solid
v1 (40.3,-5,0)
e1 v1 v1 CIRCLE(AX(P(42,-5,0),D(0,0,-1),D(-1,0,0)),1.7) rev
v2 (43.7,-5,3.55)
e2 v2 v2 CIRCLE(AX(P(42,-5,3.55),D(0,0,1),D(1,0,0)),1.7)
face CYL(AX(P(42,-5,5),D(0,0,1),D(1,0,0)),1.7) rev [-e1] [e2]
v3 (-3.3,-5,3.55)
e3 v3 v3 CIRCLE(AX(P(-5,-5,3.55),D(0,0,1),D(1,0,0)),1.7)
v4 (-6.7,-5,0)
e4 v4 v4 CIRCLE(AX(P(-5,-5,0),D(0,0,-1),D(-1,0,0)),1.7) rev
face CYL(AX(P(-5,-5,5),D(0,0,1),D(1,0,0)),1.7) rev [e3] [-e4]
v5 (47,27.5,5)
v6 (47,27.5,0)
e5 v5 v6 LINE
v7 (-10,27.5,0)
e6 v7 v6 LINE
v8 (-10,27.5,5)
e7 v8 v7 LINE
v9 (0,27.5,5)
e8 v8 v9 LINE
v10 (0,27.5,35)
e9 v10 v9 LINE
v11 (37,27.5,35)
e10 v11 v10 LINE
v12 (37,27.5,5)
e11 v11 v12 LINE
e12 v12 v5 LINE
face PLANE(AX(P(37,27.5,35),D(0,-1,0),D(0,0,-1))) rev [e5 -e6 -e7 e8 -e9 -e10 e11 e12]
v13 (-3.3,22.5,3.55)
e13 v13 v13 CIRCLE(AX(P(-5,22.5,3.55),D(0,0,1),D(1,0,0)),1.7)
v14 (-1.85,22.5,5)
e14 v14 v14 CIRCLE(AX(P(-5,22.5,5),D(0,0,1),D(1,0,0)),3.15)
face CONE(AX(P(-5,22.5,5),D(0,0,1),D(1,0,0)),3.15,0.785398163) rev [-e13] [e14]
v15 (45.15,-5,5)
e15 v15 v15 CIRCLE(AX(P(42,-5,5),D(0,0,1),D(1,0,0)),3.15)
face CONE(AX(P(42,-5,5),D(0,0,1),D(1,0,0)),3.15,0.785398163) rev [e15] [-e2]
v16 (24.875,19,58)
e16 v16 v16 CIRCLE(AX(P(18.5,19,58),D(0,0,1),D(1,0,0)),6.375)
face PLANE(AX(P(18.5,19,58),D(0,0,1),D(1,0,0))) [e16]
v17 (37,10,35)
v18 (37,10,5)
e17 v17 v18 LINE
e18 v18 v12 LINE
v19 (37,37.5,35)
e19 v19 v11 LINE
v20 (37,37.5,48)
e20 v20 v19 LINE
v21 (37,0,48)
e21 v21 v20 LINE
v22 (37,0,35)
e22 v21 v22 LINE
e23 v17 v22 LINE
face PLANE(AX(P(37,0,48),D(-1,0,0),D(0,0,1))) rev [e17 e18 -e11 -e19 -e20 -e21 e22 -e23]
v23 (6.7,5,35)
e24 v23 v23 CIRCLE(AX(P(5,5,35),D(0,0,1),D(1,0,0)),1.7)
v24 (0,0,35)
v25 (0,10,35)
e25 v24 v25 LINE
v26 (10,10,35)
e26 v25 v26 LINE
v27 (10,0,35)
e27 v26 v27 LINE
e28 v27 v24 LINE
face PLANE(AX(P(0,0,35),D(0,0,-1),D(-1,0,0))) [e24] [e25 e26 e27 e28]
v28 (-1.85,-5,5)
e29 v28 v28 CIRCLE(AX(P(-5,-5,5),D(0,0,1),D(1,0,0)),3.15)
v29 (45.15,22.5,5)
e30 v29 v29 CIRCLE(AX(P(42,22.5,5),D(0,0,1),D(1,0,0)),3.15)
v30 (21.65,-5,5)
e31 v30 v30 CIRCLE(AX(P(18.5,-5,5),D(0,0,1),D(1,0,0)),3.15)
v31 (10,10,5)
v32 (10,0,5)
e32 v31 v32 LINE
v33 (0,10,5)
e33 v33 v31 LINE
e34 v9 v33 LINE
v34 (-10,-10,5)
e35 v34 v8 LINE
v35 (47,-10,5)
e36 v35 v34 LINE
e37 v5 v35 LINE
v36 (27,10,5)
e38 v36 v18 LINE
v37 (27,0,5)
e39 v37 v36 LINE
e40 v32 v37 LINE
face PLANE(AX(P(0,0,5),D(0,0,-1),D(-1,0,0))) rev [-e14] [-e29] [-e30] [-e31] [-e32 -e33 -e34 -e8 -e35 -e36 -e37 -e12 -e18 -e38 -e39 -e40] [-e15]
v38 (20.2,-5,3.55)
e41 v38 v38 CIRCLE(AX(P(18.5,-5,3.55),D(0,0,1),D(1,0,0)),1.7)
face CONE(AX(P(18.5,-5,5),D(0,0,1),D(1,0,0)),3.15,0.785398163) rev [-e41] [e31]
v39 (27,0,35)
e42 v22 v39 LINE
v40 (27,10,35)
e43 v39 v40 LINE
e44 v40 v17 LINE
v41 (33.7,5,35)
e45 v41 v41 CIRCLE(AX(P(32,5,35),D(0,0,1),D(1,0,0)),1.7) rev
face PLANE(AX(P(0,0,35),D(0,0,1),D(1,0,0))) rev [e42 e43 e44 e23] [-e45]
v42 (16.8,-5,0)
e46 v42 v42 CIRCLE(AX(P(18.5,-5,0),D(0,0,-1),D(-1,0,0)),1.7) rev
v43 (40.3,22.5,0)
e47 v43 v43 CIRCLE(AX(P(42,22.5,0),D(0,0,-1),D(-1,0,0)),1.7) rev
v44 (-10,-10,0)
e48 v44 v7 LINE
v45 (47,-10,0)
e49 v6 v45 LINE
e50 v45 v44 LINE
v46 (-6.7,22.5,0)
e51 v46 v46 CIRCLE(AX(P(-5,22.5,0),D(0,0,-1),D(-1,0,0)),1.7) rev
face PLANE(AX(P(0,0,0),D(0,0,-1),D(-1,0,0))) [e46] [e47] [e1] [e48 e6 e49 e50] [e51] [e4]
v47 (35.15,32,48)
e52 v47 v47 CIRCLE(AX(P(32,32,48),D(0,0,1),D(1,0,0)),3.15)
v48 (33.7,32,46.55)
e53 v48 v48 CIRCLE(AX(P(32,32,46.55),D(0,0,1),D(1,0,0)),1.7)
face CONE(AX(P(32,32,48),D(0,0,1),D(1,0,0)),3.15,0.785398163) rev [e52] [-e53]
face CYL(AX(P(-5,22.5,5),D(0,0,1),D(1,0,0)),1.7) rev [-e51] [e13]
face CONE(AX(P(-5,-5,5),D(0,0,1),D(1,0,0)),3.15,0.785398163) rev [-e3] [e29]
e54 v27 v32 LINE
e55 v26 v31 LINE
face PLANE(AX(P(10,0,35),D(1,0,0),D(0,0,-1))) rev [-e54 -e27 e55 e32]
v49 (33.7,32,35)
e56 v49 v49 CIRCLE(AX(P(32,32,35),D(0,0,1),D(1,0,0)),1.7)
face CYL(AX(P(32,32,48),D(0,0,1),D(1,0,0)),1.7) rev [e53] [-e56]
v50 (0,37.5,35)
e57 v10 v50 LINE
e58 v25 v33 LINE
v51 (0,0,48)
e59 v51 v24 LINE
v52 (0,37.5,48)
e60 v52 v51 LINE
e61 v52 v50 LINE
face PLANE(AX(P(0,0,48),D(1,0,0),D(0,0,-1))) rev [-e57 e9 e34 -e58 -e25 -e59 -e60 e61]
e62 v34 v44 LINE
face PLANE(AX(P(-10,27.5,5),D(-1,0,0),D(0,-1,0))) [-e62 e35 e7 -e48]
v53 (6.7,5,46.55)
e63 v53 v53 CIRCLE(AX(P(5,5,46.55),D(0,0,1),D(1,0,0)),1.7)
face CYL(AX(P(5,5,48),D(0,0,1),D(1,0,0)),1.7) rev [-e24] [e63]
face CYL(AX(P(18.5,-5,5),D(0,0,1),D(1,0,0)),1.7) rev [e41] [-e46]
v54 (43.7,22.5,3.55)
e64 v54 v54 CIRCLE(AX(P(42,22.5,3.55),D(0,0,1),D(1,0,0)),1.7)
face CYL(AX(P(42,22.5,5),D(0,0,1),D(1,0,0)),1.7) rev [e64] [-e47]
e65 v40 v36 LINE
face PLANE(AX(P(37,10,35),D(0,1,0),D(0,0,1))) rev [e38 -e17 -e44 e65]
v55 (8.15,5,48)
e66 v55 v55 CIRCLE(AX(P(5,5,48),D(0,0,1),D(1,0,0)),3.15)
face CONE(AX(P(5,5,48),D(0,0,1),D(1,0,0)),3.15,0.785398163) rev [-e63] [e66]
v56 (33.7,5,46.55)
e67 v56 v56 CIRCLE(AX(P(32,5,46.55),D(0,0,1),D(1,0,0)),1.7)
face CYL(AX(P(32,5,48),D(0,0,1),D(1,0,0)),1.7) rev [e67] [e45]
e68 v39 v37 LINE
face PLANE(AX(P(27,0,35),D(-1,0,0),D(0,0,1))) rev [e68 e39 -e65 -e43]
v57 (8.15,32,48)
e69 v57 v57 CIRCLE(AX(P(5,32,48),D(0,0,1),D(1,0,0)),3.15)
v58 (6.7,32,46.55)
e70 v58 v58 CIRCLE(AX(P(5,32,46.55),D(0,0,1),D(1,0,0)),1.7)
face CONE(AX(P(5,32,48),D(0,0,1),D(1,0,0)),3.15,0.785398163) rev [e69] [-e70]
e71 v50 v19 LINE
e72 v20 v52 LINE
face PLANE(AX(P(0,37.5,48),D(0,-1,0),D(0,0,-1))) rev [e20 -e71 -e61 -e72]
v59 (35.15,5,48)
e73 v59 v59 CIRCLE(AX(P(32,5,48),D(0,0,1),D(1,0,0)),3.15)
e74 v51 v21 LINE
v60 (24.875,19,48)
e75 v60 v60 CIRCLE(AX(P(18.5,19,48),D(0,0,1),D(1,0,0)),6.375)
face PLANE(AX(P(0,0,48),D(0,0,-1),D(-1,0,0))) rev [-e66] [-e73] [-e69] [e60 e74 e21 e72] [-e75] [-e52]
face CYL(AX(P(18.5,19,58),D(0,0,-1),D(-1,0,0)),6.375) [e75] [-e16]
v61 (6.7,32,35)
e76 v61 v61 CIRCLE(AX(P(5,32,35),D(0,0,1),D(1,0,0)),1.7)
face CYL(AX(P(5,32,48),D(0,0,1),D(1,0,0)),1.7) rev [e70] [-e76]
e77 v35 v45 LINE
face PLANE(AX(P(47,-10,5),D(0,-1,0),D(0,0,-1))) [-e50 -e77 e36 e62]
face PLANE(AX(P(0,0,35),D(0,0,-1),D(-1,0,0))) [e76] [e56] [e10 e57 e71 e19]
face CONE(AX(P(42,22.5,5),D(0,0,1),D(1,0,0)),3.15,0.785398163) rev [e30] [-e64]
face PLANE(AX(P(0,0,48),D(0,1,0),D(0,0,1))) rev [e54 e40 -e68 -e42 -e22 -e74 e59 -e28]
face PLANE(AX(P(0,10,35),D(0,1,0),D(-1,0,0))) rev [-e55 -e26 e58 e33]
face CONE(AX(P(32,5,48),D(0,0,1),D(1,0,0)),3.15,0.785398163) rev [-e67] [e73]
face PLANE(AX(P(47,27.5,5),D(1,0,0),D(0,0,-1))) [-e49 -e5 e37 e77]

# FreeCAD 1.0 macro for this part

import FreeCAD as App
import Part
import Sketcher
Q = App.Units.Quantity

doc = App.newDocument("Part")
params = doc.addObject("Spreadsheet::Sheet", "Params")
for row, (alias, value) in enumerate([
    ("sketch1_width", "37 mm"),
    ("sketch1_height", "37.5 mm"),
    ("pad1_length", "48 mm"),
    ("sketch2_diameter", "12.75 mm"),
    ("pad2_length", "10 mm"),
    ("sketch3_width", "10 mm"),
    ("sketch3_width2", "37 mm"),
    ("pocket1_length", "30 mm"),
    ("sketch4_diameter", "3.4 mm"),
    ("hole_diameter", "3.4 mm"),
    ("hole_depth", "13 mm"),
    ("hole_csink_diameter", "6.3 mm"),
    ("sketch5_width", "10 mm"),
    ("sketch5_width2", "57 mm"),
    ("sketch5_height", "37.5 mm"),
    ("sketch5_height2", "27.5 mm"),
    ("pad3_length", "5 mm"),
    ("sketch6_width", "37 mm"),
    ("sketch6_height", "10 mm"),
    ("pocket2_length", "5 mm"),
    ("sketch7_diameter", "3.4 mm"),
    ("hole2_diameter", "3.4 mm"),
    ("hole2_depth", "5 mm"),
    ("hole2_csink_diameter", "6.3 mm"),
], start=1):
    params.set(f"A{row}", alias)
    params.set(f"B{row}", "=" + value)
    params.setAlias(f"B{row}", alias)

body = doc.addObject("PartDesign::Body", "Body")

sketch1 = body.newObject("Sketcher::SketchObject", "Sketch")
sketch1.AttachmentSupport = (doc.getObject("XY_Plane"), [""])
sketch1.MapMode = "FlatFace"
sketch1.addGeometry([
    Part.LineSegment(App.Vector(0, 37.5, 0), App.Vector(0, 0, 0)),
    Part.LineSegment(App.Vector(0, 0, 0), App.Vector(37, 0, 0)),
    Part.LineSegment(App.Vector(37, 0, 0), App.Vector(37, 37.5, 0)),
    Part.LineSegment(App.Vector(37, 37.5, 0), App.Vector(0, 37.5, 0)),
], False)
sketch1.addConstraint([
    Sketcher.Constraint("Coincident", 0, 2, 1, 1),
    Sketcher.Constraint("Coincident", 1, 2, 2, 1),
    Sketcher.Constraint("Coincident", 2, 2, 3, 1),
    Sketcher.Constraint("Coincident", 3, 2, 0, 1),
    Sketcher.Constraint("Vertical", 0),
    Sketcher.Constraint("Horizontal", 1),
    Sketcher.Constraint("Vertical", 2),
    Sketcher.Constraint("Horizontal", 3),
    Sketcher.Constraint("Coincident", 0, 2, -1, 1),
    Sketcher.Constraint("DistanceX", 1, 1, 1, 2, Q("37 mm")),
    Sketcher.Constraint("DistanceY", 0, 2, 0, 1, Q("37.5 mm")),
])
sketch1.setExpression("Constraints[9]", "Params.sketch1_width")
sketch1.setExpression("Constraints[10]", "Params.sketch1_height")
pad1 = body.newObject("PartDesign::Pad", "Pad")
pad1.Profile = sketch1
pad1.setExpression("Length", "Params.pad1_length")

sketch2 = body.newObject("Sketcher::SketchObject", "Sketch001")
sketch2.AttachmentSupport = (doc.getObject("XY_Plane"), [""])
sketch2.MapMode = "FlatFace"
sketch2.AttachmentOffset = App.Placement(App.Vector(0, 0, 48), App.Rotation())
sketch2.addGeometry(Part.Circle(App.Vector(18.5, 19, 0), App.Vector(0, 0, 1), 6.375), False)
sketch2.addConstraint([
    Sketcher.Constraint("Diameter", 0, Q("12.75 mm")),
    Sketcher.Constraint("DistanceY", -1, 1, 0, 3, Q("19 mm")),
    Sketcher.Constraint("DistanceX", -1, 1, 0, 3, Q("18.5 mm")),
])
sketch2.setExpression("Constraints[0]", "Params.sketch2_diameter")
pad2 = body.newObject("PartDesign::Pad", "Pad001")
pad2.Profile = sketch2
pad2.setExpression("Length", "Params.pad2_length")

sketch3 = body.newObject("Sketcher::SketchObject", "Sketch002")
sketch3.AttachmentSupport = (doc.getObject("XY_Plane"), [""])
sketch3.MapMode = "FlatFace"
sketch3.AttachmentOffset = App.Placement(App.Vector(0, 0, 5), App.Rotation())
sketch3.addGeometry([
    Part.LineSegment(App.Vector(37, 10, 0), App.Vector(37, 0, 0)),
    Part.LineSegment(App.Vector(37, 0, 0), App.Vector(27, 0, 0)),
    Part.LineSegment(App.Vector(27, 0, 0), App.Vector(27, 10, 0)),
    Part.LineSegment(App.Vector(27, 10, 0), App.Vector(37, 10, 0)),
    Part.LineSegment(App.Vector(37, 37.5, 0), App.Vector(37, 27.5, 0)),
    Part.LineSegment(App.Vector(37, 27.5, 0), App.Vector(0, 27.5, 0)),
    Part.LineSegment(App.Vector(0, 27.5, 0), App.Vector(0, 37.5, 0)),
    Part.LineSegment(App.Vector(0, 37.5, 0), App.Vector(37, 37.5, 0)),
    Part.LineSegment(App.Vector(10, 10, 0), App.Vector(10, 0, 0)),
    Part.LineSegment(App.Vector(10, 0, 0), App.Vector(0, 0, 0)),
    Part.LineSegment(App.Vector(0, 0, 0), App.Vector(0, 10, 0)),
    Part.LineSegment(App.Vector(0, 10, 0), App.Vector(10, 10, 0)),
], False)
sketch3.addConstraint([
    Sketcher.Constraint("Coincident", 0, 2, 1, 1),
    Sketcher.Constraint("Coincident", 1, 2, 2, 1),
    Sketcher.Constraint("Coincident", 2, 2, 3, 1),
    Sketcher.Constraint("Coincident", 3, 2, 0, 1),
    Sketcher.Constraint("Coincident", 4, 2, 5, 1),
    Sketcher.Constraint("Coincident", 5, 2, 6, 1),
    Sketcher.Constraint("Coincident", 6, 2, 7, 1),
    Sketcher.Constraint("Coincident", 7, 2, 4, 1),
    Sketcher.Constraint("Coincident", 8, 2, 9, 1),
    Sketcher.Constraint("Coincident", 9, 2, 10, 1),
    Sketcher.Constraint("Coincident", 10, 2, 11, 1),
    Sketcher.Constraint("Coincident", 11, 2, 8, 1),
    Sketcher.Constraint("Vertical", 0),
    Sketcher.Constraint("Horizontal", 1),
    Sketcher.Constraint("Vertical", 2),
    Sketcher.Constraint("Horizontal", 3),
    Sketcher.Constraint("Vertical", 4),
    Sketcher.Constraint("Horizontal", 5),
    Sketcher.Constraint("Vertical", 6),
    Sketcher.Constraint("Horizontal", 7),
    Sketcher.Constraint("Vertical", 8),
    Sketcher.Constraint("Horizontal", 9),
    Sketcher.Constraint("Vertical", 10),
    Sketcher.Constraint("Horizontal", 11),
    Sketcher.Constraint("Coincident", 9, 2, -1, 1),
    Sketcher.Constraint("PointOnObject", 0, 2, -1),
    Sketcher.Constraint("PointOnObject", 5, 2, -2),
    Sketcher.Constraint("Horizontal", 3, 2, 10, 2),
    Sketcher.Constraint("Vertical", 3, 2, 4, 2),
    Sketcher.Constraint("Equal", 3, 9),
    Sketcher.Constraint("Equal", 11, 0),
    Sketcher.Constraint("Equal", 2, 4),
    Sketcher.Constraint("DistanceX", 1, 2, 1, 1, Q("10 mm")),
    Sketcher.Constraint("DistanceX", 5, 2, 5, 1, Q("37 mm")),
    Sketcher.Constraint("DistanceY", -1, 1, 4, 2, Q("27.5 mm")),
])
sketch3.setExpression("Constraints[32]", "Params.sketch3_width")
sketch3.setExpression("Constraints[33]", "Params.sketch3_width2")
pocket1 = body.newObject("PartDesign::Pocket", "Pocket")
pocket1.Profile = sketch3
pocket1.setExpression("Length", "Params.pocket1_length")
pocket1.Reversed = True

sketch4 = body.newObject("Sketcher::SketchObject", "Sketch003")
sketch4.AttachmentSupport = (doc.getObject("XY_Plane"), [""])
sketch4.MapMode = "FlatFace"
sketch4.AttachmentOffset = App.Placement(App.Vector(0, 0, 48), App.Rotation())
sketch4.addGeometry([
    Part.Circle(App.Vector(5, 32, 0), App.Vector(0, 0, 1), 1.7),
    Part.Circle(App.Vector(32, 32, 0), App.Vector(0, 0, 1), 1.7),
    Part.Circle(App.Vector(32, 5, 0), App.Vector(0, 0, 1), 1.7),
    Part.Circle(App.Vector(5, 5, 0), App.Vector(0, 0, 1), 1.7),
], False)
sketch4.addConstraint([
    Sketcher.Constraint("Equal", 0, 1),
    Sketcher.Constraint("Equal", 1, 2),
    Sketcher.Constraint("Equal", 2, 3),
    Sketcher.Constraint("Horizontal", 0, 3, 1, 3),
    Sketcher.Constraint("Horizontal", 2, 3, 3, 3),
    Sketcher.Constraint("Vertical", 1, 3, 2, 3),
    Sketcher.Constraint("Vertical", 0, 3, 3, 3),
    Sketcher.Constraint("Diameter", 0, Q("3.4 mm")),
    Sketcher.Constraint("DistanceX", -1, 1, 0, 3, Q("5 mm")),
    Sketcher.Constraint("DistanceY", -1, 1, 0, 3, Q("32 mm")),
    Sketcher.Constraint("DistanceX", -1, 1, 1, 3, Q("32 mm")),
    Sketcher.Constraint("DistanceY", -1, 1, 2, 3, Q("5 mm")),
])
sketch4.setExpression("Constraints[7]", "Params.sketch4_diameter")
doc.recompute()
hole = body.newObject("PartDesign::Hole", "Hole")
hole.Profile = sketch4
hole.ThreadType = "None"
hole.setExpression("Diameter", "Params.hole_diameter")
hole.DepthType = "Dimension"
hole.setExpression("Depth", "Params.hole_depth")
hole.DrillPoint = "Angled"
hole.DrillPointAngle = 118
hole.HoleCutType = "Countersink"
hole.setExpression("HoleCutDiameter", "Params.hole_csink_diameter")
hole.HoleCutCountersinkAngle = 90

sketch5 = body.newObject("Sketcher::SketchObject", "Sketch004")
sketch5.AttachmentSupport = (doc.getObject("XY_Plane"), [""])
sketch5.MapMode = "FlatFace"
sketch5.addGeometry([
    Part.LineSegment(App.Vector(37, 27.5, 0), App.Vector(47, 27.5, 0)),
    Part.LineSegment(App.Vector(47, 27.5, 0), App.Vector(47, -10, 0)),
    Part.LineSegment(App.Vector(47, -10, 0), App.Vector(-10, -10, 0)),
    Part.LineSegment(App.Vector(-10, -10, 0), App.Vector(-10, 27.5, 0)),
    Part.LineSegment(App.Vector(-10, 27.5, 0), App.Vector(0, 27.5, 0)),
    Part.LineSegment(App.Vector(0, 27.5, 0), App.Vector(0, 0, 0)),
    Part.LineSegment(App.Vector(0, 0, 0), App.Vector(37, 0, 0)),
    Part.LineSegment(App.Vector(37, 0, 0), App.Vector(37, 27.5, 0)),
], False)
sketch5.addConstraint([
    Sketcher.Constraint("Coincident", 0, 2, 1, 1),
    Sketcher.Constraint("Coincident", 1, 2, 2, 1),
    Sketcher.Constraint("Coincident", 2, 2, 3, 1),
    Sketcher.Constraint("Coincident", 3, 2, 4, 1),
    Sketcher.Constraint("Coincident", 4, 2, 5, 1),
    Sketcher.Constraint("Coincident", 5, 2, 6, 1),
    Sketcher.Constraint("Coincident", 6, 2, 7, 1),
    Sketcher.Constraint("Coincident", 7, 2, 0, 1),
    Sketcher.Constraint("Horizontal", 0),
    Sketcher.Constraint("Vertical", 1),
    Sketcher.Constraint("Horizontal", 2),
    Sketcher.Constraint("Vertical", 3),
    Sketcher.Constraint("Horizontal", 4),
    Sketcher.Constraint("Vertical", 5),
    Sketcher.Constraint("Horizontal", 6),
    Sketcher.Constraint("Vertical", 7),
    Sketcher.Constraint("Coincident", 5, 2, -1, 1),
    Sketcher.Constraint("Horizontal", 0, 2, 3, 2),
    Sketcher.Constraint("Equal", 0, 4),
    Sketcher.Constraint("DistanceX", 0, 1, 0, 2, Q("10 mm")),
    Sketcher.Constraint("DistanceX", 2, 2, 2, 1, Q("57 mm")),
    Sketcher.Constraint("DistanceY", 1, 2, 1, 1, Q("37.5 mm")),
    Sketcher.Constraint("DistanceY", 5, 2, 5, 1, Q("27.5 mm")),
])
sketch5.setExpression("Constraints[19]", "Params.sketch5_width")
sketch5.setExpression("Constraints[20]", "Params.sketch5_width2")
sketch5.setExpression("Constraints[21]", "Params.sketch5_height")
sketch5.setExpression("Constraints[22]", "Params.sketch5_height2")
pad3 = body.newObject("PartDesign::Pad", "Pad002")
pad3.Profile = sketch5
pad3.setExpression("Length", "Params.pad3_length")

sketch6 = body.newObject("Sketcher::SketchObject", "Sketch005")
sketch6.AttachmentSupport = (doc.getObject("XY_Plane"), [""])
sketch6.MapMode = "FlatFace"
sketch6.addGeometry([
    Part.LineSegment(App.Vector(37, 37.5, 0), App.Vector(37, 27.5, 0)),
    Part.LineSegment(App.Vector(37, 27.5, 0), App.Vector(0, 27.5, 0)),
    Part.LineSegment(App.Vector(0, 27.5, 0), App.Vector(0, 37.5, 0)),
    Part.LineSegment(App.Vector(0, 37.5, 0), App.Vector(37, 37.5, 0)),
], False)
sketch6.addConstraint([
    Sketcher.Constraint("Coincident", 0, 2, 1, 1),
    Sketcher.Constraint("Coincident", 1, 2, 2, 1),
    Sketcher.Constraint("Coincident", 2, 2, 3, 1),
    Sketcher.Constraint("Coincident", 3, 2, 0, 1),
    Sketcher.Constraint("Vertical", 0),
    Sketcher.Constraint("Horizontal", 1),
    Sketcher.Constraint("Vertical", 2),
    Sketcher.Constraint("Horizontal", 3),
    Sketcher.Constraint("PointOnObject", 1, 2, -2),
    Sketcher.Constraint("DistanceX", 1, 2, 1, 1, Q("37 mm")),
    Sketcher.Constraint("DistanceY", 0, 2, 0, 1, Q("10 mm")),
    Sketcher.Constraint("DistanceY", -1, 1, 0, 2, Q("27.5 mm")),
])
sketch6.setExpression("Constraints[9]", "Params.sketch6_width")
sketch6.setExpression("Constraints[10]", "Params.sketch6_height")
pocket2 = body.newObject("PartDesign::Pocket", "Pocket001")
pocket2.Profile = sketch6
pocket2.setExpression("Length", "Params.pocket2_length")
pocket2.Reversed = True

sketch7 = body.newObject("Sketcher::SketchObject", "Sketch006")
sketch7.AttachmentSupport = (doc.getObject("XY_Plane"), [""])
sketch7.MapMode = "FlatFace"
sketch7.AttachmentOffset = App.Placement(App.Vector(0, 0, 5), App.Rotation())
sketch7.addGeometry([
    Part.Circle(App.Vector(-5, 22.5, 0), App.Vector(0, 0, 1), 1.7),
    Part.Circle(App.Vector(-5, -5, 0), App.Vector(0, 0, 1), 1.7),
    Part.Circle(App.Vector(18.5, -5, 0), App.Vector(0, 0, 1), 1.7),
    Part.Circle(App.Vector(42, -5, 0), App.Vector(0, 0, 1), 1.7),
    Part.Circle(App.Vector(42, 22.5, 0), App.Vector(0, 0, 1), 1.7),
], False)
sketch7.addConstraint([
    Sketcher.Constraint("Equal", 0, 1),
    Sketcher.Constraint("Equal", 1, 2),
    Sketcher.Constraint("Equal", 2, 3),
    Sketcher.Constraint("Equal", 3, 4),
    Sketcher.Constraint("Horizontal", 1, 3, 2, 3),
    Sketcher.Constraint("Horizontal", 2, 3, 3, 3),
    Sketcher.Constraint("Horizontal", 0, 3, 4, 3),
    Sketcher.Constraint("Vertical", 0, 3, 1, 3),
    Sketcher.Constraint("Vertical", 3, 3, 4, 3),
    Sketcher.Constraint("Diameter", 0, Q("3.4 mm")),
    Sketcher.Constraint("DistanceX", 0, 3, -1, 1, Q("5 mm")),
    Sketcher.Constraint("DistanceY", 1, 3, -1, 1, Q("5 mm")),
    Sketcher.Constraint("DistanceX", -1, 1, 3, 3, Q("42 mm")),
    Sketcher.Constraint("DistanceY", -1, 1, 0, 3, Q("22.5 mm")),
    Sketcher.Constraint("DistanceX", -1, 1, 2, 3, Q("18.5 mm")),
])
sketch7.setExpression("Constraints[9]", "Params.sketch7_diameter")
doc.recompute()
hole2 = body.newObject("PartDesign::Hole", "Hole001")
hole2.Profile = sketch7
hole2.ThreadType = "None"
hole2.setExpression("Diameter", "Params.hole2_diameter")
hole2.DepthType = "Dimension"
hole2.setExpression("Depth", "Params.hole2_depth")
hole2.DrillPoint = "Angled"
hole2.DrillPointAngle = 118
hole2.HoleCutType = "Countersink"
hole2.setExpression("HoleCutDiameter", "Params.hole2_csink_diameter")
hole2.HoleCutCountersinkAngle = 90

doc.recompute()
